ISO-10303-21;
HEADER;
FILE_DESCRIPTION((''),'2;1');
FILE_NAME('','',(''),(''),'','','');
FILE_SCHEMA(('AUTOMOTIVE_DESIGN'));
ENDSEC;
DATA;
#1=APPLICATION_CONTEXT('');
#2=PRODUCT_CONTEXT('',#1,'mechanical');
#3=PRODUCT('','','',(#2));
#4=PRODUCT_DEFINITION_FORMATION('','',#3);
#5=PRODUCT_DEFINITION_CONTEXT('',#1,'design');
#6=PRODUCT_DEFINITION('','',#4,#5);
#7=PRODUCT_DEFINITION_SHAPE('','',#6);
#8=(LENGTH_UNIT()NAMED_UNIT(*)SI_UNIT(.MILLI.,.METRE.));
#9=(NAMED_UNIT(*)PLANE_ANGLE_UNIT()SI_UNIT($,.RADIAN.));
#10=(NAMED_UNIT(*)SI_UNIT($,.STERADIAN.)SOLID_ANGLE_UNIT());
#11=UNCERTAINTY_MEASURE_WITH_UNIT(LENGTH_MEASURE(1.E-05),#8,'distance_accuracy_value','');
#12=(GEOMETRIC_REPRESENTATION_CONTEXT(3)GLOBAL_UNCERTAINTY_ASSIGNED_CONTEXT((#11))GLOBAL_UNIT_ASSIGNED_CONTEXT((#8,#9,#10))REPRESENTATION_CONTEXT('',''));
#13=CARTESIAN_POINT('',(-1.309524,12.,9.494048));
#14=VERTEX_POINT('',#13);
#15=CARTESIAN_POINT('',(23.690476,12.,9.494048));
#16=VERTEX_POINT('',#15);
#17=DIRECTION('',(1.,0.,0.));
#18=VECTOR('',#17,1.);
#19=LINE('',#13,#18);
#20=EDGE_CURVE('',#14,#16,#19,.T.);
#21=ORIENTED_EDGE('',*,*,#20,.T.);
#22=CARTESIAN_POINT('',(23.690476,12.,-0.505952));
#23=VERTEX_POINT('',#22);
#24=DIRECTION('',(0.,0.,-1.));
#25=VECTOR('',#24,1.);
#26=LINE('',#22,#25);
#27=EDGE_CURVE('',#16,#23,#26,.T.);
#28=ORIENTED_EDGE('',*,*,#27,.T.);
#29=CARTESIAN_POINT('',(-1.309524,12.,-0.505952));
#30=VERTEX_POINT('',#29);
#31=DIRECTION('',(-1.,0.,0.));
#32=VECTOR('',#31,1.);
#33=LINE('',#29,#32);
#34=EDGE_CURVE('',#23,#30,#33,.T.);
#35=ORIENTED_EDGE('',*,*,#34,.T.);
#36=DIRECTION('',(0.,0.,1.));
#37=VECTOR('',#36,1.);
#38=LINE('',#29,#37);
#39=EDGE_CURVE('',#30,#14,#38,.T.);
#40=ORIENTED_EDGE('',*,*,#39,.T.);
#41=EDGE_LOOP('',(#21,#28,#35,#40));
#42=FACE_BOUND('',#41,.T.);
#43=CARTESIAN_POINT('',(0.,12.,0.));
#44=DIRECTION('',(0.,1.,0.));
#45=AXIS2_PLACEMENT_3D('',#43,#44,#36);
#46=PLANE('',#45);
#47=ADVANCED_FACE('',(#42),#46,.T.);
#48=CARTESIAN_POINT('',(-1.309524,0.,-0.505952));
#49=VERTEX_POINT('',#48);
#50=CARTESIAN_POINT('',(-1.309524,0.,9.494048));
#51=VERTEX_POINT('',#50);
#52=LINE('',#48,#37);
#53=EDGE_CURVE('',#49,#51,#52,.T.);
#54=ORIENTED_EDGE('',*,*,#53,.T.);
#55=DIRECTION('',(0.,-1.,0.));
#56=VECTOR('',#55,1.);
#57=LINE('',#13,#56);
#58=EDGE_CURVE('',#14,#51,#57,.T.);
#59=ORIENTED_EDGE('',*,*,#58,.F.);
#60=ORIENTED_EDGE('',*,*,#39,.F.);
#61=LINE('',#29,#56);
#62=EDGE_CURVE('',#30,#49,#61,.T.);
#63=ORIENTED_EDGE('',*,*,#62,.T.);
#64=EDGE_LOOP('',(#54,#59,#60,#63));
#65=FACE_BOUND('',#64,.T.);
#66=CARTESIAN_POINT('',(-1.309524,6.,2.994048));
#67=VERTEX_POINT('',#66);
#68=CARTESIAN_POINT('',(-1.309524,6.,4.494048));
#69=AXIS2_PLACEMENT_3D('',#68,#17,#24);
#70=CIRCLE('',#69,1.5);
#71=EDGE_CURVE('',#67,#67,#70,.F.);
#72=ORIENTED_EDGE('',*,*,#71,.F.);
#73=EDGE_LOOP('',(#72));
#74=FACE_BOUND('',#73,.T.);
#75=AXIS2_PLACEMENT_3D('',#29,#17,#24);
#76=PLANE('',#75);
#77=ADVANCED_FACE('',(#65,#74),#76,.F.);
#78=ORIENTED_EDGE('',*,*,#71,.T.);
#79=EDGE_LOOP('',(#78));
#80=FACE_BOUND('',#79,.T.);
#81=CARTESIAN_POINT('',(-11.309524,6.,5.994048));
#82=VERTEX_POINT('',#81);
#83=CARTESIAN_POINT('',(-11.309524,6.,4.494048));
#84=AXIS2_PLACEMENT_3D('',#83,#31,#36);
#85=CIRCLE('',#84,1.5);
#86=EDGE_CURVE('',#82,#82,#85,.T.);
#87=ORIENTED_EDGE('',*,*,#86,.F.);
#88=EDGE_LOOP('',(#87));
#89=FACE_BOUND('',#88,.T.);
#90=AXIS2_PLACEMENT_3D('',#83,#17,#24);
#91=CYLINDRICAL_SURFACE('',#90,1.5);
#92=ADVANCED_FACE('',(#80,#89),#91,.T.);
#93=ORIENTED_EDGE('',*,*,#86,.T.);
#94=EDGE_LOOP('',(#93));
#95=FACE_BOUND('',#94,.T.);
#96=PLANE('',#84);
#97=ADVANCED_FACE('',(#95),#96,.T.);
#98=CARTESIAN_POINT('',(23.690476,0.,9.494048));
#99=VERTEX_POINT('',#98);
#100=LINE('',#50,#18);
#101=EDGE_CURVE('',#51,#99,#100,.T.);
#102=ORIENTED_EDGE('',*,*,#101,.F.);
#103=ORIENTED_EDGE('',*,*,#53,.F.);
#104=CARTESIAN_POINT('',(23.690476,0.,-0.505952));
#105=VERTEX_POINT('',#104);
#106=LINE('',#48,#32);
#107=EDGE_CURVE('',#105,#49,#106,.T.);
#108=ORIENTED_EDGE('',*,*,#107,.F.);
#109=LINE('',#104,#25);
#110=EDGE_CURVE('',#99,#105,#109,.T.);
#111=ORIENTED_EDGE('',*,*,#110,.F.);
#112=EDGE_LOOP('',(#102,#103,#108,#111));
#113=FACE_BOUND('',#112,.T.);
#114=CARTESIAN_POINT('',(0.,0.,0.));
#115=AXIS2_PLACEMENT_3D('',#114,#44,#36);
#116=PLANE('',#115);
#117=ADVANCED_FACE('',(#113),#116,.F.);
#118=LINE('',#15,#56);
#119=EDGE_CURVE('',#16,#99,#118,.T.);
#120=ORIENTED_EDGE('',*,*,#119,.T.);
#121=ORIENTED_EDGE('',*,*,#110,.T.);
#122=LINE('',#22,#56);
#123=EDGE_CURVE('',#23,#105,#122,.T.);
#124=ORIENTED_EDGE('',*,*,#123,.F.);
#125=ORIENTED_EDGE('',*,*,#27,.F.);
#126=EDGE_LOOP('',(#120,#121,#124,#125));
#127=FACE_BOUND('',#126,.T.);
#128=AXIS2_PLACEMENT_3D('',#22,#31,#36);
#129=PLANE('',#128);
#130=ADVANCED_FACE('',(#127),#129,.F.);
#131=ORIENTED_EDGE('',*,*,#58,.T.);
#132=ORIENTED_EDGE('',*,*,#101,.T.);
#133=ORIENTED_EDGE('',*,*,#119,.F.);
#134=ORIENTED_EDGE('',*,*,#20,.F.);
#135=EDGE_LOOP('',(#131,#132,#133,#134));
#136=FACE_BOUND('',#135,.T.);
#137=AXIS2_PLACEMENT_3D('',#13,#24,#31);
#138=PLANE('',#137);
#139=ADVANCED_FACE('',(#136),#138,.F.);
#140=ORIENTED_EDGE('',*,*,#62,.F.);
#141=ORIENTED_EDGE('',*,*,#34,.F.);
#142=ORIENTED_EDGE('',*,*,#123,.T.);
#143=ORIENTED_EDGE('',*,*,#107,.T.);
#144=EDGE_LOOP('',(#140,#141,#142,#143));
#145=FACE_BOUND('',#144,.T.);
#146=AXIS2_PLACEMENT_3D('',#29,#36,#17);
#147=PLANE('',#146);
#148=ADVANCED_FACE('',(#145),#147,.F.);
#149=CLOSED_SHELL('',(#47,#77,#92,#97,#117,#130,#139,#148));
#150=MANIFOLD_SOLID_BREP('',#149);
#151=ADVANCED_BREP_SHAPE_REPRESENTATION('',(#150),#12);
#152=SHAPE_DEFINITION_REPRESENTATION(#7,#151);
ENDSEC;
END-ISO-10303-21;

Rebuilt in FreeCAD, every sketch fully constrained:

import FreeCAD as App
import Part
import Sketcher

V = App.Vector

doc = App.newDocument("Part")
body = doc.addObject("PartDesign::Body", "Body")

# Sketch on XZ plane
sketch1 = body.newObject("Sketcher::SketchObject", "Sketch")
sketch1.AttachmentSupport = (doc.getObject("XZ_Plane"), [""])
sketch1.MapMode = "FlatFace"
sketch1.addGeometry([
    Part.LineSegment(V(-1, -1, 0), V(-1, 9, 0)),
    Part.LineSegment(V(-1, 9, 0), V(24, 9, 0)),
    Part.LineSegment(V(24, 9, 0), V(24, -1, 0)),
    Part.LineSegment(V(24, -1, 0), V(-1, -1, 0)),
], False)
sketch1.addConstraint([
    Sketcher.Constraint("Coincident", 0, 2, 1, 1),
    Sketcher.Constraint("Coincident", 1, 2, 2, 1),
    Sketcher.Constraint("Coincident", 2, 2, 3, 1),
    Sketcher.Constraint("Coincident", 3, 2, 0, 1),
    Sketcher.Constraint("Vertical", 0),
    Sketcher.Constraint("Horizontal", 1),
    Sketcher.Constraint("Vertical", 2),
    Sketcher.Constraint("Horizontal", 3),
    Sketcher.Constraint("DistanceX", 1, 1, 1, 2, 25.0),
    Sketcher.Constraint("DistanceY", 0, 1, 0, 2, 10.0),
    Sketcher.Constraint("DistanceX", 0, 2, -1, 1, 1.309524),
    Sketcher.Constraint("DistanceY", -1, 1, 0, 2, 9.494048),
])
pad1 = body.newObject("PartDesign::Pad", "Pad")
pad1.Profile = sketch1
pad1.Length = 12
pad1.Reversed = True

# Sketch on YZ plane
sketch2 = body.newObject("Sketcher::SketchObject", "Sketch001")
sketch2.AttachmentSupport = (doc.getObject("YZ_Plane"), [""])
sketch2.MapMode = "FlatFace"
sketch2.AttachmentOffset = App.Placement(V(0, 0, -1.309524), App.Rotation())
sketch2.addGeometry(Part.Circle(V(6, 4.5, 0), V(0, 0, 1), 1.5), False)
sketch2.addConstraint([
    Sketcher.Constraint("Diameter", 0, 3.0),
    Sketcher.Constraint("DistanceX", -1, 1, 0, 3, 6.0),
    Sketcher.Constraint("DistanceY", -1, 1, 0, 3, 4.494048),
])
pad2 = body.newObject("PartDesign::Pad", "Pad001")
pad2.Profile = sketch2
pad2.Length = 10
pad2.Reversed = True

doc.recompute()
